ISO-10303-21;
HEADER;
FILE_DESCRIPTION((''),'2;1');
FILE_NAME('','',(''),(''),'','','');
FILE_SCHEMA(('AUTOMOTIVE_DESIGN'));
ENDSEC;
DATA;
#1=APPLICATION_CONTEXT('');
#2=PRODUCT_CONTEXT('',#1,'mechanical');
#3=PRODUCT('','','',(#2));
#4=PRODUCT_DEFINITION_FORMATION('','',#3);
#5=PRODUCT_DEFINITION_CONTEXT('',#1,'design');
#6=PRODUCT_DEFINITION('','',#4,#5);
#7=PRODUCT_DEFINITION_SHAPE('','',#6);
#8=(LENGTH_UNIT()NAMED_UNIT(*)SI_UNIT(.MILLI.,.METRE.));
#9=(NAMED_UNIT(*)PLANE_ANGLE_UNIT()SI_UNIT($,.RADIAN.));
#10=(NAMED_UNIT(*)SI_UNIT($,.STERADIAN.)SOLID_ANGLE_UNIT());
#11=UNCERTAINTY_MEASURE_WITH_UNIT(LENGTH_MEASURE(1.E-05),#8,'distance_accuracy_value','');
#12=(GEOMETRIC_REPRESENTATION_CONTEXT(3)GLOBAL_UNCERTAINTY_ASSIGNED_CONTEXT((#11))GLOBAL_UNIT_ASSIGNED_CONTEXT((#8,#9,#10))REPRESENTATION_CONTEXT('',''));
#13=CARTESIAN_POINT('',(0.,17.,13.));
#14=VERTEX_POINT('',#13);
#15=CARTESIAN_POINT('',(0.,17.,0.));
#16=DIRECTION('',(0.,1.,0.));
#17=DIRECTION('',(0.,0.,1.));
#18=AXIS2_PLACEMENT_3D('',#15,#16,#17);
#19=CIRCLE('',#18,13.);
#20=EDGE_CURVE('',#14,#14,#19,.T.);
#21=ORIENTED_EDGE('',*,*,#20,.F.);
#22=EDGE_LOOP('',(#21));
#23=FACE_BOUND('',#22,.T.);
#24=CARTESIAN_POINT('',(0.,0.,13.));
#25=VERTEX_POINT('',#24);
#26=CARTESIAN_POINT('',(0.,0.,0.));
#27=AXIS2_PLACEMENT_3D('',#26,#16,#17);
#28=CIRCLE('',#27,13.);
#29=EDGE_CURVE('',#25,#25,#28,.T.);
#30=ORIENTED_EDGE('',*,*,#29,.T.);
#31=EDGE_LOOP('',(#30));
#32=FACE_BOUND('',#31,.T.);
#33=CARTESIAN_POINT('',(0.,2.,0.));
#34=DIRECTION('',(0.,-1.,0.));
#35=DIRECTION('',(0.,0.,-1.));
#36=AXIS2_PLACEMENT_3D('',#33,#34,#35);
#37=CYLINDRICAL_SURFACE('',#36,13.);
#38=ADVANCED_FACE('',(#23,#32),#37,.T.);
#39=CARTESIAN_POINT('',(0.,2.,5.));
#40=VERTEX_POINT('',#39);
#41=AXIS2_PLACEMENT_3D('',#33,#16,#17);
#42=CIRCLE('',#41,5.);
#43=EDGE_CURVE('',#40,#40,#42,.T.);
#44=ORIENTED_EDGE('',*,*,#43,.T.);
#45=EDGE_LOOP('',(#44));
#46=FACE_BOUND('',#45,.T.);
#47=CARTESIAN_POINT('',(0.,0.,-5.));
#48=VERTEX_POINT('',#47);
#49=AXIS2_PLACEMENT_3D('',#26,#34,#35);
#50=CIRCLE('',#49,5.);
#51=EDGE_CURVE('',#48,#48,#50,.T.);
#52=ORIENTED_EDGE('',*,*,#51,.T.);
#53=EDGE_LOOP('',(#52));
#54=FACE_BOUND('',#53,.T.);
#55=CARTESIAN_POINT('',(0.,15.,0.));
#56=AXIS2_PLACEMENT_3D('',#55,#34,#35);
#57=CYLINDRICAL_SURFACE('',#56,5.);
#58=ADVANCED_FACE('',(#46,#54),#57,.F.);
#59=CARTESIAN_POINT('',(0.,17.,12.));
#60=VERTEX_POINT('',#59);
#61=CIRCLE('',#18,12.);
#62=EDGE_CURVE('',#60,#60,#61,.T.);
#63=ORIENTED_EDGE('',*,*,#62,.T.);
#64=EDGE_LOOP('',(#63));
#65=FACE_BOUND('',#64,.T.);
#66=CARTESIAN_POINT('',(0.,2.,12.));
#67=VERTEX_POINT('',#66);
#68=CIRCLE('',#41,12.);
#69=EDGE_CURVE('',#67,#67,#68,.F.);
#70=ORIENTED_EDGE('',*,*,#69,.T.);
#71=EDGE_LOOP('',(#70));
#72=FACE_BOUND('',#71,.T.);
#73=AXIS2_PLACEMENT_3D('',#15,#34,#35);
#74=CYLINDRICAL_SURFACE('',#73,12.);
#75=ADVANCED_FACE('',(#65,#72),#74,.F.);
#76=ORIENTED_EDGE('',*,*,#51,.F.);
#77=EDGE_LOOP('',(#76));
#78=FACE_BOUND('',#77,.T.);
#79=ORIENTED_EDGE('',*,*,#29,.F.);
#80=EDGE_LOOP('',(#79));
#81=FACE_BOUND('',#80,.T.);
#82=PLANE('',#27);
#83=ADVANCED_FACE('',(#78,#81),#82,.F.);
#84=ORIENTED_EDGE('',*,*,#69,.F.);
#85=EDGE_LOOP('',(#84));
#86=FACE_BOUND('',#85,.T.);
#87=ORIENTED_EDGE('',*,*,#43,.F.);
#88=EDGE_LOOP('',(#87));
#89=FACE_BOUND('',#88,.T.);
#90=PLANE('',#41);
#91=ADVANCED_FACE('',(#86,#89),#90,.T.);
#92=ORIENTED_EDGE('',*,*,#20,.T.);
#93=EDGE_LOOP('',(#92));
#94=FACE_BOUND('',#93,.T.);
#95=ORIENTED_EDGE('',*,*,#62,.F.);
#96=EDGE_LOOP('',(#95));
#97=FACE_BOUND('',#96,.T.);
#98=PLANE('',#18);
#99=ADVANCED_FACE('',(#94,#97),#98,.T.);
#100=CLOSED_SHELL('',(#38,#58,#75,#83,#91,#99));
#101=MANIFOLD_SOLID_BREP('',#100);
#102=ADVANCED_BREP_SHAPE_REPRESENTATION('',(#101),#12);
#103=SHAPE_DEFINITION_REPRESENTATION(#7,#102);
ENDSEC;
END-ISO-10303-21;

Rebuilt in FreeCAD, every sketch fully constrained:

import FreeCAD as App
import Part
import Sketcher

V = App.Vector
Q = App.Units.Quantity

doc = App.newDocument("Part")
body = doc.addObject("PartDesign::Body", "Body")

# Sketch on XZ plane
sketch1 = doc.addObject("Sketcher::SketchObject", "Sketch")
body.addObject(sketch1)
sketch1.AttachmentSupport = (doc.XZ_Plane, [""])
sketch1.MapMode = "FlatFace"
sketch1.addGeometry(Part.Circle(V(0, 0, 0), V(0, 0, 1), 13), False)
sketch1.addConstraint(Sketcher.Constraint("Coincident", 0, 3, -1, 1))
sketch1.addConstraint(Sketcher.Constraint("Diameter", 0, Q("26 mm")))
pad1 = doc.addObject("PartDesign::Pad", "Pad")
body.addObject(pad1)
pad1.Profile = sketch1
pad1.Length = 2
pad1.Reversed = True

# Sketch on XZ plane
sketch2 = doc.addObject("Sketcher::SketchObject", "Sketch001")
body.addObject(sketch2)
sketch2.AttachmentSupport = (doc.XZ_Plane, [""])
sketch2.MapMode = "FlatFace"
sketch2.AttachmentOffset = App.Placement(V(0, 0, -2), App.Rotation())
sketch2.addGeometry(Part.Circle(V(0, 0, 0), V(0, 0, 1), 13), False)
sketch2.addGeometry(Part.Circle(V(0, 0, 0), V(0, 0, 1), 12), False)
sketch2.addConstraint(Sketcher.Constraint("Coincident", 0, 3, -1, 1))
sketch2.addConstraint(Sketcher.Constraint("Coincident", 1, 3, -1, 1))
sketch2.addConstraint(Sketcher.Constraint("Diameter", 0, Q("26 mm")))
sketch2.addConstraint(Sketcher.Constraint("Diameter", 1, Q("24 mm")))
pad2 = doc.addObject("PartDesign::Pad", "Pad001")
body.addObject(pad2)
pad2.Profile = sketch2
pad2.Length = 15
pad2.Reversed = True

# Sketch on XZ plane
sketch3 = doc.addObject("Sketcher::SketchObject", "Sketch002")
body.addObject(sketch3)
sketch3.AttachmentSupport = (doc.XZ_Plane, [""])
sketch3.MapMode = "FlatFace"
sketch3.addGeometry(Part.Circle(V(0, 0, 0), V(0, 0, 1), 5), False)
sketch3.addConstraint(Sketcher.Constraint("Coincident", 0, 3, -1, 1))
sketch3.addConstraint(Sketcher.Constraint("Diameter", 0, Q("10 mm")))
pocket1 = doc.addObject("PartDesign::Pocket", "Pocket")
body.addObject(pocket1)
pocket1.Profile = sketch3
pocket1.Length = 15

doc.recompute()
